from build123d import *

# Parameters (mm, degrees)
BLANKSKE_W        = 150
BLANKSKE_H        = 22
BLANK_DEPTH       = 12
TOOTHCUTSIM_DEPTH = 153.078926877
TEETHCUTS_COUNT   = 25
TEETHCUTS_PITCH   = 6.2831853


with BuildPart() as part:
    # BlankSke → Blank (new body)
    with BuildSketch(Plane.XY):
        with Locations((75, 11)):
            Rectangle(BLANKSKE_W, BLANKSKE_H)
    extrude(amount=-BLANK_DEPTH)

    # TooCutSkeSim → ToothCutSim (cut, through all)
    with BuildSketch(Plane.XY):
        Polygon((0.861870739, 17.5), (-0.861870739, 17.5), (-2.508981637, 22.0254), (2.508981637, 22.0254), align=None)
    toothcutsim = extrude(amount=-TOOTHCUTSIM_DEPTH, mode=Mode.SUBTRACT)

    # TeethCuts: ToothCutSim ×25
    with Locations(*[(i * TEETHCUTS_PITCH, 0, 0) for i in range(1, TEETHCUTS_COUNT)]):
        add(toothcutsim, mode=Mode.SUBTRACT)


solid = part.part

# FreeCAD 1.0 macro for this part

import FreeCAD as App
import Part
import Sketcher
from FreeCAD import Vector
Q = App.Units.Quantity

doc = App.newDocument("Part")
body = doc.addObject("PartDesign::Body", "Body")

sketch1 = body.newObject("Sketcher::SketchObject", "Sketch")
sketch1.AttachmentSupport = (doc.getObject("XY_Plane"), [""])
sketch1.MapMode = "FlatFace"
sketch1.addGeometry(Part.LineSegment(Vector(0, 22, 0), Vector(0, 0, 0)), False)
sketch1.addGeometry(Part.LineSegment(Vector(0, 0, 0), Vector(150, 0, 0)), False)
sketch1.addGeometry(Part.LineSegment(Vector(150, 0, 0), Vector(150, 22, 0)), False)
sketch1.addGeometry(Part.LineSegment(Vector(150, 22, 0), Vector(0, 22, 0)), False)
sketch1.addConstraint(Sketcher.Constraint("Coincident", 0, 2, 1, 1))
sketch1.addConstraint(Sketcher.Constraint("Coincident", 1, 2, 2, 1))
sketch1.addConstraint(Sketcher.Constraint("Coincident", 2, 2, 3, 1))
sketch1.addConstraint(Sketcher.Constraint("Coincident", 3, 2, 0, 1))
sketch1.addConstraint(Sketcher.Constraint("Vertical", 0))
sketch1.addConstraint(Sketcher.Constraint("Horizontal", 1))
sketch1.addConstraint(Sketcher.Constraint("Vertical", 2))
sketch1.addConstraint(Sketcher.Constraint("Horizontal", 3))
sketch1.addConstraint(Sketcher.Constraint("Coincident", 0, 2, -1, 1))
sketch1.addConstraint(Sketcher.Constraint("DistanceX", 1, 1, 1, 2, 150.0))
sketch1.addConstraint(Sketcher.Constraint("DistanceY", 0, 2, 0, 1, 22.0))
pad1 = body.newObject("PartDesign::Pad", "Pad")
pad1.Profile = sketch1
pad1.Length = 12
pad1.Reversed = True

sketch2 = body.newObject("Sketcher::SketchObject", "Sketch001")
sketch2.AttachmentSupport = (doc.getObject("XY_Plane"), [""])
sketch2.MapMode = "FlatFace"
sketch2.addGeometry(Part.LineSegment(Vector(-0.9, 17.5, 0), Vector(0.9, 17.5, 0)), False)
sketch2.addGeometry(Part.LineSegment(Vector(0.9, 17.5, 0), Vector(2.5, 22, 0)), False)
sketch2.addGeometry(Part.LineSegment(Vector(2.5, 22, 0), Vector(-2.5, 22, 0)), False)
sketch2.addGeometry(Part.LineSegment(Vector(-2.5, 22, 0), Vector(-0.9, 17.5, 0)), False)
sketch2.addConstraint(Sketcher.Constraint("Coincident", 0, 2, 1, 1))
sketch2.addConstraint(Sketcher.Constraint("Coincident", 1, 2, 2, 1))
sketch2.addConstraint(Sketcher.Constraint("Coincident", 2, 2, 3, 1))
sketch2.addConstraint(Sketcher.Constraint("Coincident", 3, 2, 0, 1))
sketch2.addConstraint(Sketcher.Constraint("Horizontal", 0))
sketch2.addConstraint(Sketcher.Constraint("Horizontal", 2))
sketch2.addConstraint(Sketcher.Constraint("Equal", 1, 3))
sketch2.addConstraint(Sketcher.Constraint("Angle", 1, Q("70 deg")))
sketch2.addConstraint(Sketcher.Constraint("DistanceY", -1, 1, 0, 2, 17.5))
sketch2.addConstraint(Sketcher.Constraint("DistanceX", 0, 1, 0, 2, 1.723741))
sketch2.addConstraint(Sketcher.Constraint("DistanceY", -1, 1, 1, 2, 22.0254))
sketch2.addConstraint(Sketcher.Constraint("DistanceX", -1, 1, 0, 2, 0.861871))
pocket1 = body.newObject("PartDesign::Pocket", "Pocket")
pocket1.Profile = sketch2
pocket1.Type = "ThroughAll"
doc.recompute()

linearpattern = body.newObject("PartDesign::LinearPattern", "LinearPattern")
linearpattern.Originals = [pocket1]
linearpattern.Direction = (doc.getObject("X_Axis"), [""])
linearpattern.Mode = "offset"
linearpattern.Offset = 6.283185
linearpattern.Occurrences = 25
body.Tip = linearpattern

doc.recompute()
